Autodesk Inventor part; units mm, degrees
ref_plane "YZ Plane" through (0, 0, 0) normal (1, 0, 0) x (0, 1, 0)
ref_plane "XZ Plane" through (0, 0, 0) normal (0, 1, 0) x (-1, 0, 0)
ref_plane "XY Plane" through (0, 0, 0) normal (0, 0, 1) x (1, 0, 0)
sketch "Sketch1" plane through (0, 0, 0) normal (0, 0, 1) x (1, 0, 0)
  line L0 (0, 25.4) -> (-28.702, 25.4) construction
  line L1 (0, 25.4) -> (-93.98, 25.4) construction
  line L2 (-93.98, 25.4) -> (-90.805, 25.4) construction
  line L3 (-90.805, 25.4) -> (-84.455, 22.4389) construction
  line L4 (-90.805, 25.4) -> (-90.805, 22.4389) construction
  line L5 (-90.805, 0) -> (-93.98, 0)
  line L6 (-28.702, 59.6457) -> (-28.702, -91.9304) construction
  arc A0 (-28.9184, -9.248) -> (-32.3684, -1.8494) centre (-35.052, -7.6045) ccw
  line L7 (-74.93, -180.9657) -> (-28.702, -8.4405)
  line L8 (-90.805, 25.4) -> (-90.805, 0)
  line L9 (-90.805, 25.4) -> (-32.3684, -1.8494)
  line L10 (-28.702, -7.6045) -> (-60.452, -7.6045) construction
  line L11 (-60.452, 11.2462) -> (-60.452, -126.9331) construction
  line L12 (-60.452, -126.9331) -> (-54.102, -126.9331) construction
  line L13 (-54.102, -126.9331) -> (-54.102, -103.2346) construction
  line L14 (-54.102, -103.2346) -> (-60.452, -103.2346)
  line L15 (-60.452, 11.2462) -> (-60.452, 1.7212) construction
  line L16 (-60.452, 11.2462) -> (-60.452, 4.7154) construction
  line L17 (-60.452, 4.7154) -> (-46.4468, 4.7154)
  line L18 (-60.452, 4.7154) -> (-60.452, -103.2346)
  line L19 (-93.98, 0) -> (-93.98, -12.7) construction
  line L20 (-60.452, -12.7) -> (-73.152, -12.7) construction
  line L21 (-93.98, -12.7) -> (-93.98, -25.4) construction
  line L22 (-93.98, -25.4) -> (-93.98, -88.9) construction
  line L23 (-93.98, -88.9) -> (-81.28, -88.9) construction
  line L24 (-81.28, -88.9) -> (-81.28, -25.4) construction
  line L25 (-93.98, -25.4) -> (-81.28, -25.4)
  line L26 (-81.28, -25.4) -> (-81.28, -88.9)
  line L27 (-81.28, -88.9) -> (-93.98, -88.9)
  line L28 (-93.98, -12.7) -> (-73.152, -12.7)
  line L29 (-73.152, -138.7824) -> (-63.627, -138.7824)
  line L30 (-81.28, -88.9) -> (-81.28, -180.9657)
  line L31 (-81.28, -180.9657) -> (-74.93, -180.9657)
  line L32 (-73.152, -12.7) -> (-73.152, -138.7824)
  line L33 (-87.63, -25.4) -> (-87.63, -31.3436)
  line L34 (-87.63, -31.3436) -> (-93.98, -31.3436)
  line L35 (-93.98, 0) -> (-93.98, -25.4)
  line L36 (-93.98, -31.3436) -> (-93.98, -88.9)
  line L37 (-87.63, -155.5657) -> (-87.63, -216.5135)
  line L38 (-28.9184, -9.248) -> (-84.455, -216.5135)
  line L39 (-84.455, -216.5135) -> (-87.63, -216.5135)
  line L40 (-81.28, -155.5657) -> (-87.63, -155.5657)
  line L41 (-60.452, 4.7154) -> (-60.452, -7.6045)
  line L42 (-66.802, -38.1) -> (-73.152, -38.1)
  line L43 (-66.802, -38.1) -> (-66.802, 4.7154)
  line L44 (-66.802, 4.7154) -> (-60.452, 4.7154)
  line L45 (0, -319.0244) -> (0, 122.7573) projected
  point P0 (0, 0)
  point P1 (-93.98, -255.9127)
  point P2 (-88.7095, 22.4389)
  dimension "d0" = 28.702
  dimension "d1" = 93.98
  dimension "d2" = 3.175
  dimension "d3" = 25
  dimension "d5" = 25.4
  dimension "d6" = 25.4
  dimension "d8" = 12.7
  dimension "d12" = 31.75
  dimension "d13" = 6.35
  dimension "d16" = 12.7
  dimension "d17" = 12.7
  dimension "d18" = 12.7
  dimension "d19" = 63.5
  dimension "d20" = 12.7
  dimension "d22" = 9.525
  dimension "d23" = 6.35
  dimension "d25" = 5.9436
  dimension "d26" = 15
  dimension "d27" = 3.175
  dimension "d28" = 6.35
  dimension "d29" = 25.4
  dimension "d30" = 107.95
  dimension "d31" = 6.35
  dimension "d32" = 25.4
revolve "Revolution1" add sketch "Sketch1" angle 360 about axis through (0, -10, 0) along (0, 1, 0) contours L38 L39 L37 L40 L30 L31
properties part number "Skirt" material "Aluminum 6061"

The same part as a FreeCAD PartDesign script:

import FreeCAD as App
import Part
import Sketcher

V = App.Vector
Q = App.Units.Quantity

doc = App.newDocument("Part")
body = doc.addObject("PartDesign::Body", "Body")

# Sketch on XY plane
sketch1 = doc.addObject("Sketcher::SketchObject", "Sketch")
body.addObject(sketch1)
sketch1.AttachmentSupport = (doc.XY_Plane, [""])
sketch1.MapMode = "FlatFace"
sketch1.addGeometry([
    Part.LineSegment(V(-84.5, -216.5, 0), V(-74.9, -181, 0)),  # 0
    Part.LineSegment(V(-74.9, -181, 0), V(-81.3, -181, 0)),  # 1
    Part.LineSegment(V(-81.3, -181, 0), V(-81.3, -155.6, 0)),  # 2
    Part.LineSegment(V(-81.3, -155.6, 0), V(-87.6, -155.6, 0)),  # 3
    Part.LineSegment(V(-87.6, -155.6, 0), V(-87.6, -216.5, 0)),  # 4
    Part.LineSegment(V(-87.6, -216.5, 0), V(-84.5, -216.5, 0)),  # 5
], False)
sketch1.addConstraint([
    Sketcher.Constraint("Coincident", 0, 2, 1, 1),
    Sketcher.Constraint("Coincident", 1, 2, 2, 1),
    Sketcher.Constraint("Coincident", 2, 2, 3, 1),
    Sketcher.Constraint("Coincident", 3, 2, 4, 1),
    Sketcher.Constraint("Coincident", 4, 2, 5, 1),
    Sketcher.Constraint("Coincident", 5, 2, 0, 1),
    Sketcher.Constraint("Horizontal", 1),
    Sketcher.Constraint("Vertical", 2),
    Sketcher.Constraint("Horizontal", 3),
    Sketcher.Constraint("Vertical", 4),
    Sketcher.Constraint("Horizontal", 5),
    Sketcher.Constraint("Equal", 1, 3),
    Sketcher.Constraint("DistanceY", 2, 1, 2, 2, Q("1 in")),
    Sketcher.Constraint("DistanceX", 1, 2, 1, 1, Q("0.25 in")),
    Sketcher.Constraint("DistanceX", 5, 1, 5, 2, Q("0.125 in")),
    Sketcher.Constraint("Angle", 0, Q("75 deg")),
    Sketcher.Constraint("DistanceX", 1, 2, -1, 1, Q("3.2 in")),
    Sketcher.Constraint("DistanceY", 0, 2, -1, 1, Q("180.9657 mm")),
])
revolution = doc.addObject("PartDesign::Revolution", "Revolution")
body.addObject(revolution)
revolution.Profile = sketch1
revolution.ReferenceAxis = (sketch1, ["V_Axis"])
revolution.Angle = 360

doc.recompute()
